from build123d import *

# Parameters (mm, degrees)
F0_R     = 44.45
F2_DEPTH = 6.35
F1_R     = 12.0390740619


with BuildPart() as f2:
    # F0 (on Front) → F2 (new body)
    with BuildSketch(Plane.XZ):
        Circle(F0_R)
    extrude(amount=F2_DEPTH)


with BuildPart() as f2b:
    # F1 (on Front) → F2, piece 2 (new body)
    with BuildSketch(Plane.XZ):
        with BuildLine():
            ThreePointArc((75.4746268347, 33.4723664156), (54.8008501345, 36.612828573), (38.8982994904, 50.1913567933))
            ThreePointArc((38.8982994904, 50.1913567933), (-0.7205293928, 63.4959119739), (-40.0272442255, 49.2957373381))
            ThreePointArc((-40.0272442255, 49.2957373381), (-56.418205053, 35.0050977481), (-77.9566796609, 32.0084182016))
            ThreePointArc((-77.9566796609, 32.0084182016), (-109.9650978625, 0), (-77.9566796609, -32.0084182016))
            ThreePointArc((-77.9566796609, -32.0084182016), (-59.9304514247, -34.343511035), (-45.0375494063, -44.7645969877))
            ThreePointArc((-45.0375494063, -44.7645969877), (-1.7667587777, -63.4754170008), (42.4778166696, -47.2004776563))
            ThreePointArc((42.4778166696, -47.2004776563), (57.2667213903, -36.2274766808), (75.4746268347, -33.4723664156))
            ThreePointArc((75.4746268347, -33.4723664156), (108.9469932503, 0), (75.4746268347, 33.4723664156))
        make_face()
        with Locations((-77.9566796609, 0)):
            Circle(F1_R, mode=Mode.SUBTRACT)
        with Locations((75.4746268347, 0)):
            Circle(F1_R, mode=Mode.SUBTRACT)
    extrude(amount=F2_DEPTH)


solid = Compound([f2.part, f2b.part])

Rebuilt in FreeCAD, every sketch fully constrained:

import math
import FreeCAD as App
import Part
import Sketcher

V = App.Vector
Q = App.Units.Quantity

doc = App.newDocument("Part")
params = doc.addObject("Spreadsheet::Sheet", "Params")
for row, (alias, value) in enumerate([
    ("sketch1_diameter", "3.5 in"),
    ("pad1_length", "0.25 in"),
    ("sketch2_radius", "1.5 in"),
    ("sketch2_radius2", "2.5 in"),
    ("sketch2_radius3", "1.5 in"),
    ("sketch2_radius4", "1.5 in"),
    ("sketch2_radius5", "2.5 in"),
    ("pad2_length", "0.25 in"),
], start=1):
    params.set(f"A{row}", alias)
    params.set(f"B{row}", "=" + value)
    params.setAlias(f"B{row}", alias)

body = doc.addObject("PartDesign::Body", "Body")

sketch1 = body.newObject("Sketcher::SketchObject", "Sketch")
sketch1.AttachmentSupport = (doc.getObject("XZ_Plane"), [""])
sketch1.MapMode = "FlatFace"
sketch1.addGeometry(Part.Circle(V(0, 0, 0), V(0, 0, 1), 44.45), False)
sketch1.addConstraint(Sketcher.Constraint("Coincident", 0, 3, -1, 1))
sketch1.addConstraint(Sketcher.Constraint("Diameter", 0, Q("3.5 in")))
sketch1.setExpression("Constraints[1]", "Params.sketch1_diameter")
pad1 = body.newObject("PartDesign::Pad", "Pad")
pad1.Profile = sketch1
pad1.setExpression("Length", "Params.pad1_length")
body2 = doc.addObject("PartDesign::Body", "Body001")

sketch2 = body2.newObject("Sketcher::SketchObject", "Sketch001")
sketch2.AttachmentSupport = (doc.getObject("XZ_Plane001"), [""])
sketch2.MapMode = "FlatFace"
sketch2.addGeometry(Part.ArcOfCircle(Part.Circle(V(70.64003, 71.264385, 0), V(0, 0, 1), 38.1), math.radians(-146.4202), math.radians(-82.709953)), False)
sketch2.addGeometry(Part.ArcOfCircle(Part.Circle(V(0, 0, 0), V(0, 0, 1), 63.5), math.radians(52.224317), math.radians(129.075972)), False)
sketch2.addGeometry(Part.ArcOfCircle(Part.Circle(V(-72.21944, 69.673974, 0), V(0, 0, 1), 38.1), math.radians(-98.660755), math.radians(-32.334543)), False)
sketch2.addGeometry(Part.ArcOfCircle(Part.Circle(V(-77.95668, 0, 0), V(0, 0, 1), 32.008418), math.radians(90), math.radians(270)), False)
sketch2.addGeometry(Part.ArcOfCircle(Part.Circle(V(-73.696799, -69.869525, 0), V(0, 0, 1), 38.1), math.radians(41.21771), math.radians(96.419543)), False)
sketch2.addGeometry(Part.ArcOfCircle(Part.Circle(V(0, 0, 0), V(0, 0, 1), 63.5), math.radians(-135.174149), math.radians(-48.01454)), False)
sketch2.addGeometry(Part.ArcOfCircle(Part.Circle(V(71.90189, -71.404484, 0), V(0, 0, 1), 38.1), math.radians(84.619319), math.radians(140.55956)), False)
sketch2.addGeometry(Part.ArcOfCircle(Part.Circle(V(75.474627, 0, 0), V(0, 0, 1), 33.472366), math.radians(-90), math.radians(90)), False)
sketch2.addGeometry(Part.Circle(V(-77.95668, 0, 0), V(0, 0, 1), 12.039074), False)
sketch2.addGeometry(Part.Circle(V(75.474627, 0, 0), V(0, 0, 1), 12.039074), False)
sketch2.addConstraint(Sketcher.Constraint("Coincident", 0, 1, 1, 1))
sketch2.addConstraint(Sketcher.Constraint("Coincident", 1, 2, 2, 2))
sketch2.addConstraint(Sketcher.Constraint("Coincident", 2, 1, 3, 1))
sketch2.addConstraint(Sketcher.Constraint("Coincident", 3, 2, 4, 2))
sketch2.addConstraint(Sketcher.Constraint("Coincident", 4, 1, 5, 1))
sketch2.addConstraint(Sketcher.Constraint("Coincident", 5, 2, 6, 2))
sketch2.addConstraint(Sketcher.Constraint("Coincident", 6, 1, 7, 1))
sketch2.addConstraint(Sketcher.Constraint("Coincident", 7, 2, 0, 2))
sketch2.addConstraint(Sketcher.Constraint("Coincident", 1, 3, -1, 1))
sketch2.addConstraint(Sketcher.Constraint("Coincident", 5, 3, -1, 1))
sketch2.addConstraint(Sketcher.Constraint("Coincident", 8, 3, 3, 3))
sketch2.addConstraint(Sketcher.Constraint("Coincident", 9, 3, 7, 3))
sketch2.addConstraint(Sketcher.Constraint("PointOnObject", 3, 3, -1))
sketch2.addConstraint(Sketcher.Constraint("PointOnObject", 7, 3, -1))
sketch2.addConstraint(Sketcher.Constraint("Radius", 0, Q("1.5 in")))
sketch2.addConstraint(Sketcher.Constraint("Radius", 1, Q("2.5 in")))
sketch2.addConstraint(Sketcher.Constraint("Radius", 2, Q("1.5 in")))
sketch2.addConstraint(Sketcher.Constraint("Radius", 4, Q("1.5 in")))
sketch2.addConstraint(Sketcher.Constraint("Radius", 5, Q("2.5 in")))
sketch2.addConstraint(Sketcher.Constraint("Radius", 6, Q("1.5 in")))
sketch2.addConstraint(Sketcher.Constraint("Diameter", 8, 24.078148))
sketch2.addConstraint(Sketcher.Constraint("Diameter", 9, 24.078148))
sketch2.addConstraint(Sketcher.Constraint("Radius", 3, 32.008418))
sketch2.addConstraint(Sketcher.Constraint("DistanceY", 6, 3, -1, 1, Q("2.8112002 in")))
sketch2.addConstraint(Sketcher.Constraint("Radius", 7, 33.472366))
sketch2.addConstraint(Sketcher.Constraint("DistanceX", 4, 3, -1, 1, 73.696799))
sketch2.addConstraint(Sketcher.Constraint("DistanceX", -1, 1, 0, 1, 38.898299))
sketch2.addConstraint(Sketcher.Constraint("DistanceY", 4, 3, 2, 3, 139.543499))
sketch2.addConstraint(Sketcher.Constraint("DistanceX", -1, 1, 0, 3, 70.64003))
sketch2.addConstraint(Sketcher.Constraint("DistanceX", 2, 3, -1, 1, 72.21944))
sketch2.addConstraint(Sketcher.Constraint("DistanceX", 3, 3, -1, 1, 77.95668))
sketch2.addConstraint(Sketcher.Constraint("DistanceX", -1, 1, 6, 3, 71.90189))
sketch2.addConstraint(Sketcher.Constraint("DistanceX", 2, 1, -1, 1, 77.95668))
sketch2.addConstraint(Sketcher.Constraint("DistanceX", 5, 2, 7, 3, 32.99681))
sketch2.setExpression("Constraints[14]", "Params.sketch2_radius")
sketch2.setExpression("Constraints[15]", "Params.sketch2_radius2")
sketch2.setExpression("Constraints[16]", "Params.sketch2_radius3")
sketch2.setExpression("Constraints[17]", "Params.sketch2_radius4")
sketch2.setExpression("Constraints[18]", "Params.sketch2_radius5")
pad2 = body2.newObject("PartDesign::Pad", "Pad001")
pad2.Profile = sketch2
pad2.setExpression("Length", "Params.pad2_length")

doc.recompute()
